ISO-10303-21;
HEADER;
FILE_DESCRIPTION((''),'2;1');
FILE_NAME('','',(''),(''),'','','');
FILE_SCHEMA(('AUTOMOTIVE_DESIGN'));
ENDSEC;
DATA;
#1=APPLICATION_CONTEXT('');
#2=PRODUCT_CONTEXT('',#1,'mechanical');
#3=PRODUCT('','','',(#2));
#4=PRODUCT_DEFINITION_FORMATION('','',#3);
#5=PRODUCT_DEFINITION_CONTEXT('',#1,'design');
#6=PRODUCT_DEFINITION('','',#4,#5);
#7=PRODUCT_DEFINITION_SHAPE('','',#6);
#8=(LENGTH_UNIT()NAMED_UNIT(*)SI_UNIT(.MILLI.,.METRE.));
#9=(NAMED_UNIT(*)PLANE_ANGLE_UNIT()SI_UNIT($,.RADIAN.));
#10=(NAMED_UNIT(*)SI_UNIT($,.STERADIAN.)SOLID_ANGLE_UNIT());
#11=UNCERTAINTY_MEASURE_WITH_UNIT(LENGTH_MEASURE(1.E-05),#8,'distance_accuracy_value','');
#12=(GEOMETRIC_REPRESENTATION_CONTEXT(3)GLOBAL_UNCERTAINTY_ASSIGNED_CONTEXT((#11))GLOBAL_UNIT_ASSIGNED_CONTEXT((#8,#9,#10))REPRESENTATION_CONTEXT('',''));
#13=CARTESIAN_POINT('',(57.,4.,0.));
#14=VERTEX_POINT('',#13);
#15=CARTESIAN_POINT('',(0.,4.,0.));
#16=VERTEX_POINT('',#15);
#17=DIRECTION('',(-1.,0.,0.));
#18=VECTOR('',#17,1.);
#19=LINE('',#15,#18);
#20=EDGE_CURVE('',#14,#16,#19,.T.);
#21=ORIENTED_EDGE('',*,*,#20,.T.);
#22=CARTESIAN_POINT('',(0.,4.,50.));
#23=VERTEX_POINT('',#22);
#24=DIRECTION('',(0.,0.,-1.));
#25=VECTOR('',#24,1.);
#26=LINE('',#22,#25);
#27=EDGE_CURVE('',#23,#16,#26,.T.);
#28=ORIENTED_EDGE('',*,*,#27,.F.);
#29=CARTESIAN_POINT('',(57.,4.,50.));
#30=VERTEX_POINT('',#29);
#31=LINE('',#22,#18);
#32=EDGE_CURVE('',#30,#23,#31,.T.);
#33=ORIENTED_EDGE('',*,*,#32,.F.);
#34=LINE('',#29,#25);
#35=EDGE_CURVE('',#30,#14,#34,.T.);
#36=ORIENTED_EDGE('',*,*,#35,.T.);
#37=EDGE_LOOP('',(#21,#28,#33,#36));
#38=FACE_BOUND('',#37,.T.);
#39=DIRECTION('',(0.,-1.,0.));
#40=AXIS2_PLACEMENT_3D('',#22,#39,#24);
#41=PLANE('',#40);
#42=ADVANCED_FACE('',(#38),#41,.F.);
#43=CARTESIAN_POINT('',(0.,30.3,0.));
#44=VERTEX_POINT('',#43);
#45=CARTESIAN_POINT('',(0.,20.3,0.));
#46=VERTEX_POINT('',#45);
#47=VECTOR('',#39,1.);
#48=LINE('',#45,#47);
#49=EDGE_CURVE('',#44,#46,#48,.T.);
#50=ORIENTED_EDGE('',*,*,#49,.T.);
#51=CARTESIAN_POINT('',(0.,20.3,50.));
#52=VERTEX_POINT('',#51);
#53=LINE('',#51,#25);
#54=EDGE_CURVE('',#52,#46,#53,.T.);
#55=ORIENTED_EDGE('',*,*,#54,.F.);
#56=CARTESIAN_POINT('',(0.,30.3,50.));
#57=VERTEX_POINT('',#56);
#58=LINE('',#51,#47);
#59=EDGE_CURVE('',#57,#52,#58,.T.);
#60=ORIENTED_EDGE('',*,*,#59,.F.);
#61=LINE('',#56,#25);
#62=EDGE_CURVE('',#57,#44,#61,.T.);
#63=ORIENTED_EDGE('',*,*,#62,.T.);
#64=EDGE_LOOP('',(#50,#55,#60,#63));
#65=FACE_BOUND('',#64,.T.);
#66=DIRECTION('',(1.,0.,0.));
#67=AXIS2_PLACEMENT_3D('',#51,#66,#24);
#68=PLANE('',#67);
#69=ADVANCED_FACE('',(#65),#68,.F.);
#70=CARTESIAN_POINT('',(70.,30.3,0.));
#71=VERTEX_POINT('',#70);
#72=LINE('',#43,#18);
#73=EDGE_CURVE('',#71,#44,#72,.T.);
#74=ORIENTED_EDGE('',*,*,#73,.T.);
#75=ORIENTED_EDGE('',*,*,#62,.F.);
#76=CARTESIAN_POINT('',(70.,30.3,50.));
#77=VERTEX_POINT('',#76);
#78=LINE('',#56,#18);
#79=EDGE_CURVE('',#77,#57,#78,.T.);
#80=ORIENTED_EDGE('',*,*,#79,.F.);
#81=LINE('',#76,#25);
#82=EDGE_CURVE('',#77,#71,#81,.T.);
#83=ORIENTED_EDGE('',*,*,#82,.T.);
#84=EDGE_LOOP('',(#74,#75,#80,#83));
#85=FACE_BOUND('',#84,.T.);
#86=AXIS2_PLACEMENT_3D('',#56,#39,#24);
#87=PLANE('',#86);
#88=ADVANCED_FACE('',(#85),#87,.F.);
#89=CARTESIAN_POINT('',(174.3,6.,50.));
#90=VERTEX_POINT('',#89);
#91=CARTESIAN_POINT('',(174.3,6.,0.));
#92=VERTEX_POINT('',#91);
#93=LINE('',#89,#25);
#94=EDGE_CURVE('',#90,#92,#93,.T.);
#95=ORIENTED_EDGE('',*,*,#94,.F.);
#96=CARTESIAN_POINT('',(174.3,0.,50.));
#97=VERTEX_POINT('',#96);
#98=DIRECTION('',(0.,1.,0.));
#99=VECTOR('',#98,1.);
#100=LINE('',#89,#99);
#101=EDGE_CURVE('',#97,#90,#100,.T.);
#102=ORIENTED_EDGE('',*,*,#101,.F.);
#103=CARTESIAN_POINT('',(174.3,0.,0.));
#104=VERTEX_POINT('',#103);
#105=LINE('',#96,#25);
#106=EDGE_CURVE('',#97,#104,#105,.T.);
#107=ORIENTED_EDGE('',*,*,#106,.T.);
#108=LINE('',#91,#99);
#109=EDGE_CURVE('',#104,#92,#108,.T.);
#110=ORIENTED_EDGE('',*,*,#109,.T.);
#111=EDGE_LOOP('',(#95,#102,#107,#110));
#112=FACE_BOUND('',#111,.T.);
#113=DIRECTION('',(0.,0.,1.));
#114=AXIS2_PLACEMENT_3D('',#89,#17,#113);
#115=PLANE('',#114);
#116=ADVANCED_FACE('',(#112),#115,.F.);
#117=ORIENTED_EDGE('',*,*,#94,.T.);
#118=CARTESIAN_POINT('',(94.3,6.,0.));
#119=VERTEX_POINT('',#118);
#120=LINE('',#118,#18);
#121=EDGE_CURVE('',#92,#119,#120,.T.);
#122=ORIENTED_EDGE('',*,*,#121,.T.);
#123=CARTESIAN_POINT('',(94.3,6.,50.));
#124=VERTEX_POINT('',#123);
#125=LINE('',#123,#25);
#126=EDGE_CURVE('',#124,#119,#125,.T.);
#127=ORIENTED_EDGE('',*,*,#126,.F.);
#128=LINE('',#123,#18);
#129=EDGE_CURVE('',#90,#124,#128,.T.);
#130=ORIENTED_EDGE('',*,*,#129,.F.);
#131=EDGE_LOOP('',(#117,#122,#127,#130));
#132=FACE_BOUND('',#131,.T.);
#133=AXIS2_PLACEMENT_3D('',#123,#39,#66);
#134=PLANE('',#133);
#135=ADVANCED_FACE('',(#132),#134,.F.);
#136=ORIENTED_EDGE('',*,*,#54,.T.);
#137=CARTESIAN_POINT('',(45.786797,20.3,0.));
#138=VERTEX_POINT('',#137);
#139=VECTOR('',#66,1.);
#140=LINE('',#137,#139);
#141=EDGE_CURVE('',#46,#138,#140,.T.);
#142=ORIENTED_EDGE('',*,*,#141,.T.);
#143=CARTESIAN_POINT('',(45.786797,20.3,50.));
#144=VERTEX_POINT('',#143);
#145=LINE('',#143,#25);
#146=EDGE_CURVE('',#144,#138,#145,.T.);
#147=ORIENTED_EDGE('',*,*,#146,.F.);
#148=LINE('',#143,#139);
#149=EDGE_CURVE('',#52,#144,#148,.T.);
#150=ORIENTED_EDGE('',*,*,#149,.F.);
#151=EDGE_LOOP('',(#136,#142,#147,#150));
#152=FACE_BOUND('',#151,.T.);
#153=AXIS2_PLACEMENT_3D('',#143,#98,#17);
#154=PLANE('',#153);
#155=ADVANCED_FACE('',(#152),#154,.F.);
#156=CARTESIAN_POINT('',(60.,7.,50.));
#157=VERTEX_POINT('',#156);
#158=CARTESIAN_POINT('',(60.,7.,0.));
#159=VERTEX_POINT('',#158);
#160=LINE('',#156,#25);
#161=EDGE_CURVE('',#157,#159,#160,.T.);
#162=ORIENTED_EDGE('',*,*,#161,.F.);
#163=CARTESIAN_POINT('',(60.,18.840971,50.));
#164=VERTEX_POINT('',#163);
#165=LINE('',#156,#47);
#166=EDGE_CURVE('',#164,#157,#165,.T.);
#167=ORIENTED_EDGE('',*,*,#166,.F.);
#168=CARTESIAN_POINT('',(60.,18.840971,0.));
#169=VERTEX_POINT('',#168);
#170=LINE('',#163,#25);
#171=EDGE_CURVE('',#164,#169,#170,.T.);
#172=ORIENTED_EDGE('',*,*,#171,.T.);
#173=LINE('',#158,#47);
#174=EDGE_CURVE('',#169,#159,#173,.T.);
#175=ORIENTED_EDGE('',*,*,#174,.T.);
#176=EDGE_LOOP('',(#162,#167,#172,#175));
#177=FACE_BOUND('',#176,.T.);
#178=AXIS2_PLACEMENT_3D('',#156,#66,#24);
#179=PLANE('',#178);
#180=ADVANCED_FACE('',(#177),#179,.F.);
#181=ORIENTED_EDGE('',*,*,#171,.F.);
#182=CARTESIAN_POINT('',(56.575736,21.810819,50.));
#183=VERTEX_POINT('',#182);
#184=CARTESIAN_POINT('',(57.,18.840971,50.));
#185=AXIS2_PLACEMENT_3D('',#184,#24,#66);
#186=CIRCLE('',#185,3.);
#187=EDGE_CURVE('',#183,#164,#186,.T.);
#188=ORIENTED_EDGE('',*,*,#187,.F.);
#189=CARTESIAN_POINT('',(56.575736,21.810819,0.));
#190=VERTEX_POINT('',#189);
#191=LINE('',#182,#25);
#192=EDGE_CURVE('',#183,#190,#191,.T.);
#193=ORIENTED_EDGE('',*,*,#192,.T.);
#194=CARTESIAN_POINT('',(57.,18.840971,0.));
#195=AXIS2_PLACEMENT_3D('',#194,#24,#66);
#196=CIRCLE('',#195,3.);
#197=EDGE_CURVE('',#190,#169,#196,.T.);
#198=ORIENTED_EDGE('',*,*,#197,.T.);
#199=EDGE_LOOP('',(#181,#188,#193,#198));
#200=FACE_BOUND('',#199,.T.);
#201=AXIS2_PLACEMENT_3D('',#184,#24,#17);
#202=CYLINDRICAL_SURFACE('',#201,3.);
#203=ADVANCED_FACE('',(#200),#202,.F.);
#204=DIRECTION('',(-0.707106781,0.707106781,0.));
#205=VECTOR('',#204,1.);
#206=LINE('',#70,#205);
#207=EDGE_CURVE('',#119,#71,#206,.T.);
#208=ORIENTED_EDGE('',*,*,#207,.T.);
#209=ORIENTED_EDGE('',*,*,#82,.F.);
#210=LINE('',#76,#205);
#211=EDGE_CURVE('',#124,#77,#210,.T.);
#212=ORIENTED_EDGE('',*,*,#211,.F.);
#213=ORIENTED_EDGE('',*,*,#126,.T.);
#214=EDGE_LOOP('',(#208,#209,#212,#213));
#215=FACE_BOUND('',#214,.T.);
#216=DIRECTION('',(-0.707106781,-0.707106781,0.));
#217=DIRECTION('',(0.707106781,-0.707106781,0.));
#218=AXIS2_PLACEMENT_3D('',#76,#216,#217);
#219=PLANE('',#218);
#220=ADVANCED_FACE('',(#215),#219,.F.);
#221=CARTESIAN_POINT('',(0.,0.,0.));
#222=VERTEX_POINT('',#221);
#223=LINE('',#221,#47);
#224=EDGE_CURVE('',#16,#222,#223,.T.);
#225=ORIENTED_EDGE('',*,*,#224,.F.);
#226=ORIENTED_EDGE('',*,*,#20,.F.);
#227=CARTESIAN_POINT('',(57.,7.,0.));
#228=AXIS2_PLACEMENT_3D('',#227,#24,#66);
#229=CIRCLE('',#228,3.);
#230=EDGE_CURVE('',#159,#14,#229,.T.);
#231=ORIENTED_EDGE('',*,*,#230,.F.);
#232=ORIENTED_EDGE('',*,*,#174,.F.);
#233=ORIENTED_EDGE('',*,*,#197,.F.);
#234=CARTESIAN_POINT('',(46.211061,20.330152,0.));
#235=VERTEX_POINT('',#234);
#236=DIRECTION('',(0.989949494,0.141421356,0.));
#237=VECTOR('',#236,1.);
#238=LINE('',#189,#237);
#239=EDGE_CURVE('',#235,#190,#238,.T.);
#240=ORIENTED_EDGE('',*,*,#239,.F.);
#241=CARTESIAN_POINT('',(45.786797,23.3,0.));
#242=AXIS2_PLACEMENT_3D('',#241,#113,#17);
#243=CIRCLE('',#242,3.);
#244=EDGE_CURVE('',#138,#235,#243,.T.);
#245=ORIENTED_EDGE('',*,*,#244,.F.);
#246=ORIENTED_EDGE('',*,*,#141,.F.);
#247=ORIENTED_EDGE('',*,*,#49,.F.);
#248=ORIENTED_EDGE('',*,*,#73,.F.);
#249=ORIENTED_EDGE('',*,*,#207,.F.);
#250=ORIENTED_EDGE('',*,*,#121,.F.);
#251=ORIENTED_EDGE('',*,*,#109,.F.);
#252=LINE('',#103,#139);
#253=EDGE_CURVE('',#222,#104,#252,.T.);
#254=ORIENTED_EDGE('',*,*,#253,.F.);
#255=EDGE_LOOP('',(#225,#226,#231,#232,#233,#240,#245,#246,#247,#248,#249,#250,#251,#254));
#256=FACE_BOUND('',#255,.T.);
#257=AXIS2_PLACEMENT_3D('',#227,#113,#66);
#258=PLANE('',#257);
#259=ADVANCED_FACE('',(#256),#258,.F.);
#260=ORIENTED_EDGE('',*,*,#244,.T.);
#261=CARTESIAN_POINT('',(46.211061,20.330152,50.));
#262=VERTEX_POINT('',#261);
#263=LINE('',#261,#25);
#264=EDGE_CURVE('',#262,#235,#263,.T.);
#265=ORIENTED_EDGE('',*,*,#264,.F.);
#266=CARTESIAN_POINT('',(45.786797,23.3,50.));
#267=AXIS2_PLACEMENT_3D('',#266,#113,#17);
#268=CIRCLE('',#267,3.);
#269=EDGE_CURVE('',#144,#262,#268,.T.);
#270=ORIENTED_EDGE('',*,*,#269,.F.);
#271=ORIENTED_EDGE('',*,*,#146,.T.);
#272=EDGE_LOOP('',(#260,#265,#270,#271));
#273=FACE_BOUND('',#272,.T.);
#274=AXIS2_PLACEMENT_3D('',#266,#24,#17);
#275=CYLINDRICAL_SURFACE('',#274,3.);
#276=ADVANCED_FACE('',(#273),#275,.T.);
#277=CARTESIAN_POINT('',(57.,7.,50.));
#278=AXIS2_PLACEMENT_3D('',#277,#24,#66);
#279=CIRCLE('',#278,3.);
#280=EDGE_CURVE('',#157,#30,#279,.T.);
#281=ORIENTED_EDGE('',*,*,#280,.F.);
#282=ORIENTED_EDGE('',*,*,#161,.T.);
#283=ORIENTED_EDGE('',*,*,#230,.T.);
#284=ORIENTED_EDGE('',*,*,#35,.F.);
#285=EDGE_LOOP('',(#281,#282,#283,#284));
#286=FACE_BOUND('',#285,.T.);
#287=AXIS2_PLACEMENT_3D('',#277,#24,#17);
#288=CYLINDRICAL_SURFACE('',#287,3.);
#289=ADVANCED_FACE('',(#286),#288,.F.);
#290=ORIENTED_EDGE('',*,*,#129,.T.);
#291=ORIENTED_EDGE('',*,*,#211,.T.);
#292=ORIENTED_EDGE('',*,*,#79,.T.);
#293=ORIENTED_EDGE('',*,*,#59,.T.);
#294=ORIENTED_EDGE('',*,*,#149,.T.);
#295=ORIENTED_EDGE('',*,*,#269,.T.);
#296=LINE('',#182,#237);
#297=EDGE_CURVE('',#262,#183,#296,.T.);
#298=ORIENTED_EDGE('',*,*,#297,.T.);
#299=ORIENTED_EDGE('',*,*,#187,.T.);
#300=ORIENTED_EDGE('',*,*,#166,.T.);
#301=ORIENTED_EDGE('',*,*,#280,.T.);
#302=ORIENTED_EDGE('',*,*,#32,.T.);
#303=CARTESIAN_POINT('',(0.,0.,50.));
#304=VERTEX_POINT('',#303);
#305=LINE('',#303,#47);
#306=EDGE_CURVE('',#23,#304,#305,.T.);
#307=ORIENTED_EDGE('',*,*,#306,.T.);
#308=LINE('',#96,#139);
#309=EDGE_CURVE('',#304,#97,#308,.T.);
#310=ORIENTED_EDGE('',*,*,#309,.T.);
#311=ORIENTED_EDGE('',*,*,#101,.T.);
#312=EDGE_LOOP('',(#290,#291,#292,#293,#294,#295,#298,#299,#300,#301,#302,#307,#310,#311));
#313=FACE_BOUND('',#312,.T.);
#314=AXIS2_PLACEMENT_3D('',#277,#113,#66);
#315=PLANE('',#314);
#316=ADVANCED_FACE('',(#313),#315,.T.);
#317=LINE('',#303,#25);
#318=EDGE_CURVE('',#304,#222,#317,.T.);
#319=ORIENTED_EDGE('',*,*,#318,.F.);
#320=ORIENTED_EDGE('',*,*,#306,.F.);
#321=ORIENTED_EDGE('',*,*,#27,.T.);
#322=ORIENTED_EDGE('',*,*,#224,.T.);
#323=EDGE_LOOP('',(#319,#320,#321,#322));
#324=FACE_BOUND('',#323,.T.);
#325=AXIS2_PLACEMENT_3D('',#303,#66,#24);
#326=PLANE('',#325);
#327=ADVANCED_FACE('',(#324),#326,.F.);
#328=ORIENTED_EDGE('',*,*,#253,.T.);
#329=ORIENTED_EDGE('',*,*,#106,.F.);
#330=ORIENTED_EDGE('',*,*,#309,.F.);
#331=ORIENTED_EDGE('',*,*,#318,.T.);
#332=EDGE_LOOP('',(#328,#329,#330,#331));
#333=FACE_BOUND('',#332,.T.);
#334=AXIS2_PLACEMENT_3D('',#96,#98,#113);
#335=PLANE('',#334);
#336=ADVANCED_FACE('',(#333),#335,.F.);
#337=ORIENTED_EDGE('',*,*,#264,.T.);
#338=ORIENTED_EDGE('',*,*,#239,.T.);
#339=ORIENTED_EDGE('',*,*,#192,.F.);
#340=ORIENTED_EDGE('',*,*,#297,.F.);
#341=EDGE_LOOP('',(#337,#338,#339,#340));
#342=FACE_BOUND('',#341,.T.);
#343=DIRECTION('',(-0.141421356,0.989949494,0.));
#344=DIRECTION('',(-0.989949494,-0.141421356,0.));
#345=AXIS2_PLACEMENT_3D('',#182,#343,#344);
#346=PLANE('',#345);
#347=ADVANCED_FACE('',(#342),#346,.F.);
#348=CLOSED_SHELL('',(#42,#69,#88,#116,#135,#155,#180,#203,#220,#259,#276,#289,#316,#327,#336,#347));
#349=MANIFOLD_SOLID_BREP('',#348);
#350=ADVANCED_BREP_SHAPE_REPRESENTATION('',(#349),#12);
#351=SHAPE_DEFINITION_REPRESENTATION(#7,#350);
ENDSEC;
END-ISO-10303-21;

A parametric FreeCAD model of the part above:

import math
import FreeCAD as App
import Part
import Sketcher
Q = App.Units.Quantity

doc = App.newDocument("Part")
body = doc.addObject("PartDesign::Body", "Body")

sketch1 = body.newObject("Sketcher::SketchObject", "Sketch")
sketch1.AttachmentSupport = (doc.getObject("XY_Plane"), [""])
sketch1.MapMode = "FlatFace"
sketch1.addGeometry(Part.LineSegment(App.Vector(0, 4, 0), App.Vector(0, 0, 0)), False)
sketch1.addGeometry(Part.LineSegment(App.Vector(0, 0, 0), App.Vector(174.3, 0, 0)), False)
sketch1.addGeometry(Part.LineSegment(App.Vector(174.3, 0, 0), App.Vector(174.3, 6, 0)), False)
sketch1.addGeometry(Part.LineSegment(App.Vector(174.3, 6, 0), App.Vector(94.3, 6, 0)), False)
sketch1.addGeometry(Part.LineSegment(App.Vector(94.3, 6, 0), App.Vector(70, 30.3, 0)), False)
sketch1.addGeometry(Part.LineSegment(App.Vector(70, 30.3, 0), App.Vector(0, 30.3, 0)), False)
sketch1.addGeometry(Part.LineSegment(App.Vector(0, 30.3, 0), App.Vector(0, 20.3, 0)), False)
sketch1.addGeometry(Part.LineSegment(App.Vector(0, 20.3, 0), App.Vector(45.79, 20.3, 0)), False)
sketch1.addGeometry(Part.ArcOfCircle(Part.Circle(App.Vector(45.79, 23.3, 0), App.Vector(0, 0, 1), 3), math.radians(-90), math.radians(-81.87)), False)
sketch1.addGeometry(Part.LineSegment(App.Vector(46.21, 20.33, 0), App.Vector(56.58, 21.81, 0)), False)
sketch1.addGeometry(Part.ArcOfCircle(Part.Circle(App.Vector(57, 18.84, 0), App.Vector(0, 0, 1), 3), math.radians(0), math.radians(98)), False)
sketch1.addGeometry(Part.LineSegment(App.Vector(60, 18.84, 0), App.Vector(60, 7, 0)), False)
sketch1.addGeometry(Part.ArcOfCircle(Part.Circle(App.Vector(57, 7, 0), App.Vector(0, 0, 1), 3), math.radians(-90), math.radians(0)), False)
sketch1.addGeometry(Part.LineSegment(App.Vector(57, 4, 0), App.Vector(0, 4, 0)), False)
sketch1.addConstraint(Sketcher.Constraint("Coincident", 0, 2, 1, 1))
sketch1.addConstraint(Sketcher.Constraint("Coincident", 1, 2, 2, 1))
sketch1.addConstraint(Sketcher.Constraint("Coincident", 2, 2, 3, 1))
sketch1.addConstraint(Sketcher.Constraint("Coincident", 3, 2, 4, 1))
sketch1.addConstraint(Sketcher.Constraint("Coincident", 4, 2, 5, 1))
sketch1.addConstraint(Sketcher.Constraint("Coincident", 5, 2, 6, 1))
sketch1.addConstraint(Sketcher.Constraint("Coincident", 6, 2, 7, 1))
sketch1.addConstraint(Sketcher.Constraint("Tangent", 7, 2, 8, 1))
sketch1.addConstraint(Sketcher.Constraint("Tangent", 8, 2, 9, 1))
sketch1.addConstraint(Sketcher.Constraint("Tangent", 9, 2, 10, 2))
sketch1.addConstraint(Sketcher.Constraint("Tangent", 10, 1, 11, 1))
sketch1.addConstraint(Sketcher.Constraint("Tangent", 11, 2, 12, 2))
sketch1.addConstraint(Sketcher.Constraint("Tangent", 12, 1, 13, 1))
sketch1.addConstraint(Sketcher.Constraint("Coincident", 13, 2, 0, 1))
sketch1.addConstraint(Sketcher.Constraint("Vertical", 0))
sketch1.addConstraint(Sketcher.Constraint("Horizontal", 1))
sketch1.addConstraint(Sketcher.Constraint("Vertical", 2))
sketch1.addConstraint(Sketcher.Constraint("Horizontal", 3))
sketch1.addConstraint(Sketcher.Constraint("Horizontal", 5))
sketch1.addConstraint(Sketcher.Constraint("Vertical", 6))
sketch1.addConstraint(Sketcher.Constraint("Horizontal", 7))
sketch1.addConstraint(Sketcher.Constraint("Vertical", 11))
sketch1.addConstraint(Sketcher.Constraint("Horizontal", 13))
sketch1.addConstraint(Sketcher.Constraint("Coincident", 0, 2, -1, 1))
sketch1.addConstraint(Sketcher.Constraint("Equal", 8, 10))
sketch1.addConstraint(Sketcher.Constraint("Equal", 10, 12))
sketch1.addConstraint(Sketcher.Constraint("PointOnObject", 5, 2, -2))
sketch1.addConstraint(Sketcher.Constraint("Radius", 8, 3.0))
sketch1.addConstraint(Sketcher.Constraint("DistanceX", 3, 2, 3, 1, 80.0))
sketch1.addConstraint(Sketcher.Constraint("DistanceX", 5, 2, 5, 1, 70.0))
sketch1.addConstraint(Sketcher.Constraint("DistanceX", 13, 2, 13, 1, 57.0))
sketch1.addConstraint(Sketcher.Constraint("DistanceY", 0, 2, 0, 1, 4.0))
sketch1.addConstraint(Sketcher.Constraint("DistanceY", 2, 1, 2, 2, 6.0))
sketch1.addConstraint(Sketcher.Constraint("DistanceY", 6, 2, 6, 1, 10.0))
sketch1.addConstraint(Sketcher.Constraint("Angle", 4, Q("135 deg")))
sketch1.addConstraint(Sketcher.Constraint("DistanceX", 1, 1, 1, 2, 174.3))
sketch1.addConstraint(Sketcher.Constraint("DistanceY", 11, 2, 11, 1, 11.840971))
sketch1.addConstraint(Sketcher.Constraint("DistanceX", 7, 1, 7, 2, 45.786797))
pad1 = body.newObject("PartDesign::Pad", "Pad")
pad1.Profile = sketch1
pad1.Length = 50

doc.recompute()
